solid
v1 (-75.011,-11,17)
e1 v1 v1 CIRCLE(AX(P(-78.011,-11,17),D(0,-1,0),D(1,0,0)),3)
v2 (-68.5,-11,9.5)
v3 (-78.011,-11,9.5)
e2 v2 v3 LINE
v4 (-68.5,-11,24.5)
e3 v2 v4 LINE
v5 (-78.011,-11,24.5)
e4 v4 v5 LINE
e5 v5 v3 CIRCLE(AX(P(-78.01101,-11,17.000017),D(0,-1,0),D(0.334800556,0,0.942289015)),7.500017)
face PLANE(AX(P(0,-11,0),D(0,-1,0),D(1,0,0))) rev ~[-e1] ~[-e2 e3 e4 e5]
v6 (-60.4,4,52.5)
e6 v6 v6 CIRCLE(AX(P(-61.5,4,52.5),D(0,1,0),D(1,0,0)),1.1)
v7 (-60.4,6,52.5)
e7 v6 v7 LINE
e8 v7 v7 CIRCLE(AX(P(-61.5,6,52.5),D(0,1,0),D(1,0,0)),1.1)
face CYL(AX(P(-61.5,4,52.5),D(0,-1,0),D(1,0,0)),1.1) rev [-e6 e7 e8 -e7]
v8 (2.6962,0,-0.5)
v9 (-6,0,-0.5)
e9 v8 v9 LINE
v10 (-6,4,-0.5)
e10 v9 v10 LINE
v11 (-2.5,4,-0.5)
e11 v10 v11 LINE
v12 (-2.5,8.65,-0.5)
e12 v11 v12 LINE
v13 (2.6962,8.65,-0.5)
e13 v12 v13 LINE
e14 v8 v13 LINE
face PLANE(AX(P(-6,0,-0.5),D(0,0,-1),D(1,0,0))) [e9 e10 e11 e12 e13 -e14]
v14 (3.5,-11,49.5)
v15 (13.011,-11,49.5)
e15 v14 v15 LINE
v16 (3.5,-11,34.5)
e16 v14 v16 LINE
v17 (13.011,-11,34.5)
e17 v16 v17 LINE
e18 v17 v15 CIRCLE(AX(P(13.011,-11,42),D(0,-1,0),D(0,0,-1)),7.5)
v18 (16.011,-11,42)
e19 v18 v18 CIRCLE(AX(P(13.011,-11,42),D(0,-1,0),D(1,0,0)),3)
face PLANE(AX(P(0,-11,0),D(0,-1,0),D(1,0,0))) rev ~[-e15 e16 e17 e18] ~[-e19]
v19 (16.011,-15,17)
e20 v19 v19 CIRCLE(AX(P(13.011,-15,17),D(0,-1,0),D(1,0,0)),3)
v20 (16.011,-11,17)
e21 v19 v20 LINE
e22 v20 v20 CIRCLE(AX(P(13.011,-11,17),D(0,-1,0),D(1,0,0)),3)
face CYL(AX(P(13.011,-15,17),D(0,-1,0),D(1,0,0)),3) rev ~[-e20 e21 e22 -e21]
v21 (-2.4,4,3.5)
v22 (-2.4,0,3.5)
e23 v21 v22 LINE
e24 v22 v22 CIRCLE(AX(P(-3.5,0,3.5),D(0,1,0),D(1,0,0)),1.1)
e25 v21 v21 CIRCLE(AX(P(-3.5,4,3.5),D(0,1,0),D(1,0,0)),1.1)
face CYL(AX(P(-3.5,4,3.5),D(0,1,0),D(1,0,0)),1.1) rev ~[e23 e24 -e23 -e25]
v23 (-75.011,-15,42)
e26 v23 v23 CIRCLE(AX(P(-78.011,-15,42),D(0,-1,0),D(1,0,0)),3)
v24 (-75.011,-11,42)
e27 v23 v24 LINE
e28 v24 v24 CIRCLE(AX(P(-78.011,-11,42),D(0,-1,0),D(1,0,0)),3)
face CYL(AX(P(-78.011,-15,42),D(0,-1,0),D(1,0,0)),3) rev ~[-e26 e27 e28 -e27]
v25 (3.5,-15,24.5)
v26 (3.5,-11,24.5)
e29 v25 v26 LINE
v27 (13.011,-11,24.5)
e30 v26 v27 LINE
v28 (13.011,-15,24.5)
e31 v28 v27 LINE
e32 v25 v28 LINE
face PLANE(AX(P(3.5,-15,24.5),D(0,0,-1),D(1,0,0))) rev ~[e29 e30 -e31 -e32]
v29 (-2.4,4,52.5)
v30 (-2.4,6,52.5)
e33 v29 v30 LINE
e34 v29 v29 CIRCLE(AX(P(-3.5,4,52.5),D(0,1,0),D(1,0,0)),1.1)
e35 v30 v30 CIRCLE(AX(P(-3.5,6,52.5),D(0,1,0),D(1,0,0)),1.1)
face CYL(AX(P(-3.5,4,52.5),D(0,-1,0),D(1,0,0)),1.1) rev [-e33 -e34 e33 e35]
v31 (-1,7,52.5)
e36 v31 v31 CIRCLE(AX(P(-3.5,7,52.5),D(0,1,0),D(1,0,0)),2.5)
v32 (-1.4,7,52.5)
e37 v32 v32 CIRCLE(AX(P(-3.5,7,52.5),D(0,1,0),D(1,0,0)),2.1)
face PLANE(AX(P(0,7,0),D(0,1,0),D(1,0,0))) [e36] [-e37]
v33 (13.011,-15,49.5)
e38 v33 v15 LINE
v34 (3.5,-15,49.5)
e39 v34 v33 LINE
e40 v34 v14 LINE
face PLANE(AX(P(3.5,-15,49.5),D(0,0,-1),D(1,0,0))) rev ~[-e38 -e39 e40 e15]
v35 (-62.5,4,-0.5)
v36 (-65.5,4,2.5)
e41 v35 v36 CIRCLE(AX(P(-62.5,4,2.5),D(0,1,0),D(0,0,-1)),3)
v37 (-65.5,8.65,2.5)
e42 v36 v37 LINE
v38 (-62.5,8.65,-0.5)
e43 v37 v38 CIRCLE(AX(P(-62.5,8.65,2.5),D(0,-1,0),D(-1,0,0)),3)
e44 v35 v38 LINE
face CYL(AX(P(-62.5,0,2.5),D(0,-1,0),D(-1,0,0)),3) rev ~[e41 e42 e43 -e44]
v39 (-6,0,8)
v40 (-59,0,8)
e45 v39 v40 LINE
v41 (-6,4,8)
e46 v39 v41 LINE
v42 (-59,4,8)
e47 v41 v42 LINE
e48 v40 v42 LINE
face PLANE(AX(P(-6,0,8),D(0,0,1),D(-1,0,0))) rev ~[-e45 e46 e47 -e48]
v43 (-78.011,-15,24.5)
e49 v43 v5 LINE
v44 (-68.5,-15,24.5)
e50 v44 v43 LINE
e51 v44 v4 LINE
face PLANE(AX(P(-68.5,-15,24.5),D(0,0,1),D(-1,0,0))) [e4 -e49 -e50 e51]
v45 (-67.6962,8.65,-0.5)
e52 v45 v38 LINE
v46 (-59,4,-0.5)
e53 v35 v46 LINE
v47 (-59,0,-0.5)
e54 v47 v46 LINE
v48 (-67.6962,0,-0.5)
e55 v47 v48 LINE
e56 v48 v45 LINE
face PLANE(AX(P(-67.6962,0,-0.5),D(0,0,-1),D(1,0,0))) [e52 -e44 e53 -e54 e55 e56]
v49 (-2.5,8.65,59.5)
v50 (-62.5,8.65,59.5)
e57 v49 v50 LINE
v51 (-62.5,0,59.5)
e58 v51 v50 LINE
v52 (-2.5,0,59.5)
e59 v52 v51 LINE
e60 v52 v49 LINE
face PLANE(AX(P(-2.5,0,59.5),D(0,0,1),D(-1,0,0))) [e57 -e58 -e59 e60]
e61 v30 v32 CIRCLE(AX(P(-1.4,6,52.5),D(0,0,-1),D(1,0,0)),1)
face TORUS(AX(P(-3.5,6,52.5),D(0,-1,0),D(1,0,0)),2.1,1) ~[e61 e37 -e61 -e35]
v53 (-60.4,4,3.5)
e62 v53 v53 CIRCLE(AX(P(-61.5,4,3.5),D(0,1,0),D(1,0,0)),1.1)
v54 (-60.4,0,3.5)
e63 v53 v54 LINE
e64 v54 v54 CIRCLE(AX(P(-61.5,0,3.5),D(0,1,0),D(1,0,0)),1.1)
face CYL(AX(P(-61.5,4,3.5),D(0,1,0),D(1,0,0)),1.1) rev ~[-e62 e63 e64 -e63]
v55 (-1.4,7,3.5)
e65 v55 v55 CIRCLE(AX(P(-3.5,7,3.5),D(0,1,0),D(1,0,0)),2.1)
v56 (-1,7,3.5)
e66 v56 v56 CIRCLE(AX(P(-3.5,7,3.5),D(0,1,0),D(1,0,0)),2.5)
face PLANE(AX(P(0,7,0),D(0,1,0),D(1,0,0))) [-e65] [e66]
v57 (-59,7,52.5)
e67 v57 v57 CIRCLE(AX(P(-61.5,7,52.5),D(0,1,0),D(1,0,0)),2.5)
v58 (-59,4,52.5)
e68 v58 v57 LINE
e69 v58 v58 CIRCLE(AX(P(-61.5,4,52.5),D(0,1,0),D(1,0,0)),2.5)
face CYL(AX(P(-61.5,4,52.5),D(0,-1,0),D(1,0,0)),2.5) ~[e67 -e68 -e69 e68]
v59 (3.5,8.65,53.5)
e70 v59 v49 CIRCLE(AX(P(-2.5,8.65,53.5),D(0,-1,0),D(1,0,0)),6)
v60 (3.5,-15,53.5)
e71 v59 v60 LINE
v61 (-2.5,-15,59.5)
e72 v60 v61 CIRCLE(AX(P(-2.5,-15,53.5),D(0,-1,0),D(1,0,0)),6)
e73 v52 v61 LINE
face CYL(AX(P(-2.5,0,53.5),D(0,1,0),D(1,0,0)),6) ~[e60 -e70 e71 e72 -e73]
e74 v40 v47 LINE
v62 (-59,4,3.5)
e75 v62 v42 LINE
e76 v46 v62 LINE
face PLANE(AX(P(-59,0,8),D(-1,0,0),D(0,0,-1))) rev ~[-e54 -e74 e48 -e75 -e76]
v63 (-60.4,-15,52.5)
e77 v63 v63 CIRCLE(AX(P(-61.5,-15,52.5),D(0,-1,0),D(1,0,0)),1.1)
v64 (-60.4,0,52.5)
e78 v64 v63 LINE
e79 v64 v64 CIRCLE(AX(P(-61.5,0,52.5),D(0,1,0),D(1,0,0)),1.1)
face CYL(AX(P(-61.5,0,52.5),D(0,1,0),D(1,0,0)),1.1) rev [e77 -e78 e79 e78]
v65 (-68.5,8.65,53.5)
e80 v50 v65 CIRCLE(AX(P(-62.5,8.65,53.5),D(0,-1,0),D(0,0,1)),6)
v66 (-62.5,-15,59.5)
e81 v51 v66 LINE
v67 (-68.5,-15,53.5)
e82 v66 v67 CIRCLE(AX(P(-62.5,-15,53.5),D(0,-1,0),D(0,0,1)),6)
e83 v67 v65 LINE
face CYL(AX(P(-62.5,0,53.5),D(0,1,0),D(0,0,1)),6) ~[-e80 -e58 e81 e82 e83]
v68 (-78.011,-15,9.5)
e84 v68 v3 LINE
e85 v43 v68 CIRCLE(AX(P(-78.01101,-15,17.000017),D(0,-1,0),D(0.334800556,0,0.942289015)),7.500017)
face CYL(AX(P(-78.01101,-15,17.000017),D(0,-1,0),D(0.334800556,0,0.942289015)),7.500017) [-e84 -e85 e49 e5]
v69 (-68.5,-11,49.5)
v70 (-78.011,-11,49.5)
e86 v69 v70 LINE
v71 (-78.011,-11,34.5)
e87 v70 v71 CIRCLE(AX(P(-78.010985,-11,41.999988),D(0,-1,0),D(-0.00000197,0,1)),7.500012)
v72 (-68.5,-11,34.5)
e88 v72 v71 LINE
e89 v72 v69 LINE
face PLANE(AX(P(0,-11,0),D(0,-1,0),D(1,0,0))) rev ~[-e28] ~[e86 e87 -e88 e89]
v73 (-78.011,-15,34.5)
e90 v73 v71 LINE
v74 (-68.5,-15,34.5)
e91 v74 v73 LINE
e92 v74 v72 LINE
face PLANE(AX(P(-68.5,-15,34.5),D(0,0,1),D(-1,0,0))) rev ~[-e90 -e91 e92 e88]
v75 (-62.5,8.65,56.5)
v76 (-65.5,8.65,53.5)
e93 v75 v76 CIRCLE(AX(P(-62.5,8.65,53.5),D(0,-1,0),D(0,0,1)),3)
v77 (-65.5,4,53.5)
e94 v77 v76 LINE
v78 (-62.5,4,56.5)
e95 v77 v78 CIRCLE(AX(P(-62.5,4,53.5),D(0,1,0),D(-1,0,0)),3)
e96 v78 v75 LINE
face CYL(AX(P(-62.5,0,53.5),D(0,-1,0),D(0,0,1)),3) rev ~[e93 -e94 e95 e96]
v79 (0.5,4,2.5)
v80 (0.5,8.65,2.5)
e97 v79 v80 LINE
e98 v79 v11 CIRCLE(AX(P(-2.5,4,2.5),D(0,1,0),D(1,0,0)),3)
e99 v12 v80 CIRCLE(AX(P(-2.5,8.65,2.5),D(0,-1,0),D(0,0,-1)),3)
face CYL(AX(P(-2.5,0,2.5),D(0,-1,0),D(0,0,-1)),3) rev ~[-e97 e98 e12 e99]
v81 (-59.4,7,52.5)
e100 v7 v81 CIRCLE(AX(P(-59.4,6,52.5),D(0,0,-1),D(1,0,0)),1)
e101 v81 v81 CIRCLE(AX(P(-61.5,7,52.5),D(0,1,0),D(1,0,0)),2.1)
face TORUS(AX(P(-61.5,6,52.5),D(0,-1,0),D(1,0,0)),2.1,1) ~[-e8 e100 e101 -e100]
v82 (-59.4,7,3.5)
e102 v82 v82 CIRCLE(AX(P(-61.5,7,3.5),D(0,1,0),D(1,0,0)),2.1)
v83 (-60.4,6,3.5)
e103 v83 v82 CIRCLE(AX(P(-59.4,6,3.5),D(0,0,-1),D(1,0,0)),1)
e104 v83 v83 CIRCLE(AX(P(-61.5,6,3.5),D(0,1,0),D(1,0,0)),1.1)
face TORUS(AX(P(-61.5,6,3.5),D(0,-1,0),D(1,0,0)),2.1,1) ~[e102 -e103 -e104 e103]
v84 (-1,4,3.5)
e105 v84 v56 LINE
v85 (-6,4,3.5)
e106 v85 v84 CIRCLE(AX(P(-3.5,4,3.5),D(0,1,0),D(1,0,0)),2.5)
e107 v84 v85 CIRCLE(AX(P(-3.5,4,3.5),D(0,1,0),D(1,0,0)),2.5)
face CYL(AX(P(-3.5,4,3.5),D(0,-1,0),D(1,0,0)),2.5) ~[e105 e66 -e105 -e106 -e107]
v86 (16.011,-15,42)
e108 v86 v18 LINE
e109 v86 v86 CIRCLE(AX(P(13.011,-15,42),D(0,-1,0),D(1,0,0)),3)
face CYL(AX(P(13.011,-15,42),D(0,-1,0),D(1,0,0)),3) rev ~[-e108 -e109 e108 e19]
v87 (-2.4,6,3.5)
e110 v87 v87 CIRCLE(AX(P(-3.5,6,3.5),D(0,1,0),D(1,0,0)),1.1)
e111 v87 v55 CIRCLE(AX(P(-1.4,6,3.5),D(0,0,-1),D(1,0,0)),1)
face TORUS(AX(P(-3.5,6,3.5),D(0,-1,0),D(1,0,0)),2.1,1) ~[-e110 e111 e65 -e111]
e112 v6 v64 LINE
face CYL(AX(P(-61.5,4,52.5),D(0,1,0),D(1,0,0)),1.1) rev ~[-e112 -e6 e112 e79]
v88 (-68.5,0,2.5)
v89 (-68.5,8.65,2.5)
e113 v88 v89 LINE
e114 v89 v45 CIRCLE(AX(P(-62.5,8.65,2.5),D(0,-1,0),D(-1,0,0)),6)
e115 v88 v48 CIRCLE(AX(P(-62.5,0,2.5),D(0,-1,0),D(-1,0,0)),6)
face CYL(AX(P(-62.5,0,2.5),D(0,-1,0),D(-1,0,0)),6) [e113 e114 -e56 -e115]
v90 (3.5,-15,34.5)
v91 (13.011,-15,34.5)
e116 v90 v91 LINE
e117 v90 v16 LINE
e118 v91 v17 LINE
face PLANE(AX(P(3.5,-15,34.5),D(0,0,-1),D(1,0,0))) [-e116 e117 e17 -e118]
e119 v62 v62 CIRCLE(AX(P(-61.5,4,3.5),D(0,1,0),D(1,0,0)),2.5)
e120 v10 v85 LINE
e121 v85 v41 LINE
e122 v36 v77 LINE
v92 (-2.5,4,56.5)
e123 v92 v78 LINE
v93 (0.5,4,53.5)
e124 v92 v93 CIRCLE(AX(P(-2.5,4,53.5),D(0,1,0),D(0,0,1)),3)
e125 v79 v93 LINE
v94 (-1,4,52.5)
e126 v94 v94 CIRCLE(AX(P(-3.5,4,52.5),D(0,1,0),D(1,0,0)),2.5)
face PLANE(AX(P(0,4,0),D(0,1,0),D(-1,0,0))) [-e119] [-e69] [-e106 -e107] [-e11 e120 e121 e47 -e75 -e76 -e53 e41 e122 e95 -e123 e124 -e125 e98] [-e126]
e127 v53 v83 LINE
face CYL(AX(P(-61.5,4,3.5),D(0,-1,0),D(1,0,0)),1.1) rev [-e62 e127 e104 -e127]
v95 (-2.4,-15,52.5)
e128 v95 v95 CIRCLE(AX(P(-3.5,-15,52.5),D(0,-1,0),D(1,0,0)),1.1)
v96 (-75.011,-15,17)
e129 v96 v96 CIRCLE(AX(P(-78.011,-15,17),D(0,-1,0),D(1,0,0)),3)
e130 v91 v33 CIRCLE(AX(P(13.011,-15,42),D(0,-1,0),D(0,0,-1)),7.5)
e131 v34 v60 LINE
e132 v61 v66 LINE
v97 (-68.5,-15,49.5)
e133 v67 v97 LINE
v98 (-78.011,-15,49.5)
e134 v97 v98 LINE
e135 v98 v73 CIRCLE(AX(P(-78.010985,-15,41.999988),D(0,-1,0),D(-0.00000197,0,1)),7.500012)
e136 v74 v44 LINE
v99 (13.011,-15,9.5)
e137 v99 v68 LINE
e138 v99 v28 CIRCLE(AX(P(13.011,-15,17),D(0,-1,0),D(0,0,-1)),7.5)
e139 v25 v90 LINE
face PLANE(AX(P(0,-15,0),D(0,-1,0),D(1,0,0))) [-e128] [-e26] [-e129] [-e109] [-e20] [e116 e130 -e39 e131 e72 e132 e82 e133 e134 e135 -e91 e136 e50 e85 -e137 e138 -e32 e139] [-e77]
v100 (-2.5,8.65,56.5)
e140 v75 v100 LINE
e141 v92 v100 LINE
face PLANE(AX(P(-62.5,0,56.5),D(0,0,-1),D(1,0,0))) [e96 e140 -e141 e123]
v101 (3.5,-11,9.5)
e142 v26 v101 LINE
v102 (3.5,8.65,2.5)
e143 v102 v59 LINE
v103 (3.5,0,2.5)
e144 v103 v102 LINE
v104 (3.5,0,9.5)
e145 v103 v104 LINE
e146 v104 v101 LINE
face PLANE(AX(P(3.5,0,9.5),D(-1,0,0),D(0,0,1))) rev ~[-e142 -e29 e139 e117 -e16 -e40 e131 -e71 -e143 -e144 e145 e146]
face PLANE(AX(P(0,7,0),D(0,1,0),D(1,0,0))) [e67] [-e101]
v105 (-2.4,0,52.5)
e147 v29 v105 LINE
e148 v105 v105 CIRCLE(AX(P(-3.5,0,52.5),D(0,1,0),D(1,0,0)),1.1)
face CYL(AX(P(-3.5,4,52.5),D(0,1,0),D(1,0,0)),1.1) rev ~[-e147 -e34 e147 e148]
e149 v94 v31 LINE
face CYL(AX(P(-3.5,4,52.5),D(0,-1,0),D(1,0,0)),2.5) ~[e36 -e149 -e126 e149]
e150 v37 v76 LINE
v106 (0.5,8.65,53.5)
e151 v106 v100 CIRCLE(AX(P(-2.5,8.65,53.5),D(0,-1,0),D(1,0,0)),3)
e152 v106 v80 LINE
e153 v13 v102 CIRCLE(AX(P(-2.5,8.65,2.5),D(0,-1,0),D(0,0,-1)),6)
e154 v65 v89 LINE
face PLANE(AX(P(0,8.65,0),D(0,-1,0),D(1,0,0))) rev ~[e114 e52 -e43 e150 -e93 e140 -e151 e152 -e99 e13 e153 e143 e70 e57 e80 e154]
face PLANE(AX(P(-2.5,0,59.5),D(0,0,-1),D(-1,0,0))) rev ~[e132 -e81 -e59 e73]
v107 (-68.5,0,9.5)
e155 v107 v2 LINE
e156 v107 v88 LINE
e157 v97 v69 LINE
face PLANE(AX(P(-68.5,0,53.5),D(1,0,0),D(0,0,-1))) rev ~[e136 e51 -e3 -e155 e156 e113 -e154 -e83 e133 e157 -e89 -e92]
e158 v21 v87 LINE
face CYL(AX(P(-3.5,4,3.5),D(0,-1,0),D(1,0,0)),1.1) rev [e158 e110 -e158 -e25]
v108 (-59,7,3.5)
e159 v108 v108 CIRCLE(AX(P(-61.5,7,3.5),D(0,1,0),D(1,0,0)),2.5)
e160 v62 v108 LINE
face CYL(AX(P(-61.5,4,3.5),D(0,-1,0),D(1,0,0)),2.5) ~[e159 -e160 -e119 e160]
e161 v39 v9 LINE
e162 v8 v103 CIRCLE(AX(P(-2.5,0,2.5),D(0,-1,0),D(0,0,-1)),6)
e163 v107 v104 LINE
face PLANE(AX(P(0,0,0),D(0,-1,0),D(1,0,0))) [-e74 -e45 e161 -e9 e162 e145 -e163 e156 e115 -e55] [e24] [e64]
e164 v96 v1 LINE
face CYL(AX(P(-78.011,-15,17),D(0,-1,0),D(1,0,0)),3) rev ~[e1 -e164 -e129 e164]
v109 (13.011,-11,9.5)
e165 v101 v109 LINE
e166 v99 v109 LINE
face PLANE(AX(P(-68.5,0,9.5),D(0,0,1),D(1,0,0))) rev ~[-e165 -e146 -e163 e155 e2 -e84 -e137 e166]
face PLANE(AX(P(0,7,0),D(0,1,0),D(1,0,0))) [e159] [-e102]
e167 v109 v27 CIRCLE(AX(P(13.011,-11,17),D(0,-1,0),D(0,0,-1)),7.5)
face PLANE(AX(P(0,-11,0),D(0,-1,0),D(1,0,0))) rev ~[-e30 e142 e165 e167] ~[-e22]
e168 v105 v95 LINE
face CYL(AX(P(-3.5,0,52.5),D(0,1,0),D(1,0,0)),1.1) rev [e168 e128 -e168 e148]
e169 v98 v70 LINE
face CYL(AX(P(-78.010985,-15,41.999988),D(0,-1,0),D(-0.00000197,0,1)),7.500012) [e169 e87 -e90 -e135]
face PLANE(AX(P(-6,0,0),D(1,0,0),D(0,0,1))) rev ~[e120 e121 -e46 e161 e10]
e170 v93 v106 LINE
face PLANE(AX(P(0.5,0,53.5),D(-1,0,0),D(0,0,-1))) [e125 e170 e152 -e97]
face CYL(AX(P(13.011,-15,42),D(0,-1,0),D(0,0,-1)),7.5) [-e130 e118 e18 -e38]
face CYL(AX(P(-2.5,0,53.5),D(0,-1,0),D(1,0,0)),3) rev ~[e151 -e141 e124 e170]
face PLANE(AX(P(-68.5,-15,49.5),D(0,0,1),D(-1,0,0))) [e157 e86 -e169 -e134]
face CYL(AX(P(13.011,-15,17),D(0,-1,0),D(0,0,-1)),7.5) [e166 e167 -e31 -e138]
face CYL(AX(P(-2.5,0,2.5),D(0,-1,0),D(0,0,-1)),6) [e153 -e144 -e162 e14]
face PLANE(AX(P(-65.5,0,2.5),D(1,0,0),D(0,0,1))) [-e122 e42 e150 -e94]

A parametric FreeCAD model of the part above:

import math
import FreeCAD as App
import Part
import Sketcher

V = App.Vector
Q = App.Units.Quantity


def edges_at(feature, points):
    """Names of the edges that pass closest to the given points."""
    edges = feature.Shape.Edges
    near = lambda p: min(range(len(edges)), key=lambda i: edges[i].distToShape(Part.Vertex(*p))[0])
    return sorted({f"Edge{near(p) + 1}" for p in points})

doc = App.newDocument("Part")
body = doc.addObject("PartDesign::Body", "Body")

sketch1 = body.newObject("Sketcher::SketchObject", "Sketch")
sketch1.AttachmentSupport = (doc.getObject("XZ_Plane"), [""])
sketch1.MapMode = "FlatFace"
sketch1.addGeometry([
    Part.LineSegment(V(-59, 8, 0), V(-59, -0.5, 0)),
    Part.LineSegment(V(-59, -0.5, 0), V(-62.5, -0.5, 0)),
    Part.ArcOfCircle(Part.Circle(V(-62.5, 2.5, 0), V(0, 0, 1), 3), math.radians(180), math.radians(270)),
    Part.LineSegment(V(-65.5, 2.5, 0), V(-65.5, 53.5, 0)),
    Part.ArcOfCircle(Part.Circle(V(-62.5, 53.5, 0), V(0, 0, 1), 3), math.radians(90), math.radians(180)),
    Part.LineSegment(V(-62.5, 56.5, 0), V(-2.5, 56.5, 0)),
    Part.ArcOfCircle(Part.Circle(V(-2.5, 53.5, 0), V(0, 0, 1), 3), math.radians(0), math.radians(90)),
    Part.LineSegment(V(0.5, 53.5, 0), V(0.5, 2.5, 0)),
    Part.ArcOfCircle(Part.Circle(V(-2.5, 2.5, 0), V(0, 0, 1), 3), math.radians(-90), math.radians(0)),
    Part.LineSegment(V(-2.5, -0.5, 0), V(-6, -0.5, 0)),
    Part.LineSegment(V(-6, -0.5, 0), V(-6, 8, 0)),
    Part.LineSegment(V(-6, 8, 0), V(-59, 8, 0)),
], False)
sketch1.addConstraint([
    Sketcher.Constraint("Coincident", 0, 2, 1, 1),
    Sketcher.Constraint("Tangent", 1, 2, 2, 2),
    Sketcher.Constraint("Tangent", 2, 1, 3, 1),
    Sketcher.Constraint("Tangent", 3, 2, 4, 2),
    Sketcher.Constraint("Tangent", 4, 1, 5, 1),
    Sketcher.Constraint("Tangent", 5, 2, 6, 2),
    Sketcher.Constraint("Tangent", 6, 1, 7, 1),
    Sketcher.Constraint("Tangent", 7, 2, 8, 2),
    Sketcher.Constraint("Tangent", 8, 1, 9, 1),
    Sketcher.Constraint("Coincident", 9, 2, 10, 1),
    Sketcher.Constraint("Coincident", 10, 2, 11, 1),
    Sketcher.Constraint("Coincident", 11, 2, 0, 1),
    Sketcher.Constraint("Vertical", 0),
    Sketcher.Constraint("Horizontal", 1),
    Sketcher.Constraint("Vertical", 3),
    Sketcher.Constraint("Horizontal", 5),
    Sketcher.Constraint("Vertical", 7),
    Sketcher.Constraint("Horizontal", 9),
    Sketcher.Constraint("Vertical", 10),
    Sketcher.Constraint("Horizontal", 11),
    Sketcher.Constraint("Equal", 2, 4),
    Sketcher.Constraint("Equal", 4, 6),
    Sketcher.Constraint("Equal", 6, 8),
    Sketcher.Constraint("Horizontal", 2, 3, 8, 3),
    Sketcher.Constraint("Equal", 1, 9),
    Sketcher.Constraint("DistanceX", 11, 2, 11, 1, Q("53 mm")),
    Sketcher.Constraint("DistanceY", -1, 1, 10, 2, Q("8 mm")),
    Sketcher.Constraint("Radius", 2, Q("3 mm")),
    Sketcher.Constraint("DistanceY", -1, 1, 2, 3, Q("2.5 mm")),
    Sketcher.Constraint("DistanceX", 6, 3, -1, 1, Q("2.5 mm")),
    Sketcher.Constraint("DistanceX", 5, 1, 5, 2, Q("60 mm")),
    Sketcher.Constraint("DistanceY", 3, 1, 3, 2, Q("51 mm")),
])
pad1 = body.newObject("PartDesign::Pad", "Pad")
pad1.Profile = sketch1
pad1.Length = 4
pad1.Reversed = True

sketch2 = body.newObject("Sketcher::SketchObject", "Sketch001")
sketch2.AttachmentSupport = (doc.getObject("XZ_Plane"), [""])
sketch2.MapMode = "FlatFace"
sketch2.AttachmentOffset = App.Placement(V(0, 0, -4), App.Rotation())
sketch2.addGeometry([
    Part.Circle(V(-61.5, 52.5, 0), V(0, 0, 1), 2.5),
    Part.Circle(V(-61.5, 52.5, 0), V(0, 0, 1), 1.1),
    Part.Circle(V(-61.5, 3.5, 0), V(0, 0, 1), 2.5),
    Part.Circle(V(-61.5, 3.5, 0), V(0, 0, 1), 1.1),
    Part.Circle(V(-3.5, 3.5, 0), V(0, 0, 1), 2.5),
    Part.Circle(V(-3.5, 3.5, 0), V(0, 0, 1), 1.1),
    Part.Circle(V(-3.5, 52.5, 0), V(0, 0, 1), 2.5),
    Part.Circle(V(-3.5, 52.5, 0), V(0, 0, 1), 1.1),
], False)
sketch2.addConstraint([
    Sketcher.Constraint("Coincident", 1, 3, 0, 3),
    Sketcher.Constraint("Coincident", 3, 3, 2, 3),
    Sketcher.Constraint("Coincident", 5, 3, 4, 3),
    Sketcher.Constraint("Coincident", 7, 3, 6, 3),
    Sketcher.Constraint("Equal", 0, 2),
    Sketcher.Constraint("Equal", 1, 3),
    Sketcher.Constraint("Equal", 2, 4),
    Sketcher.Constraint("Equal", 3, 5),
    Sketcher.Constraint("Equal", 4, 6),
    Sketcher.Constraint("Equal", 5, 7),
    Sketcher.Constraint("Horizontal", 3, 3, 4, 3),
    Sketcher.Constraint("Horizontal", 1, 3, 6, 3),
    Sketcher.Constraint("Vertical", 1, 3, 2, 3),
    Sketcher.Constraint("Vertical", 5, 3, 6, 3),
    Sketcher.Constraint("Diameter", 0, Q("5 mm")),
    Sketcher.Constraint("Diameter", 1, Q("2.2 mm")),
    Sketcher.Constraint("DistanceY", 2, 3, 0, 3, Q("49 mm")),
    Sketcher.Constraint("DistanceX", 2, 3, 4, 3, Q("58 mm")),
    Sketcher.Constraint("DistanceX", 0, 3, -1, 1, Q("61.5 mm")),
    Sketcher.Constraint("DistanceY", -1, 1, 0, 3, Q("52.5 mm")),
])
pad2 = body.newObject("PartDesign::Pad", "Pad001")
pad2.Profile = sketch2
pad2.Length = 3
pad2.Reversed = True

sketch3 = body.newObject("Sketcher::SketchObject", "Sketch002")
sketch3.AttachmentSupport = (doc.getObject("XZ_Plane"), [""])
sketch3.MapMode = "FlatFace"
sketch3.AttachmentOffset = App.Placement(V(0, 0, -4), App.Rotation())
sketch3.addGeometry([
    Part.Circle(V(-3.5, 3.5, 0), V(0, 0, 1), 1.1),
    Part.Circle(V(-3.5, 52.5, 0), V(0, 0, 1), 1.1),
    Part.Circle(V(-61.5, 52.5, 0), V(0, 0, 1), 1.1),
    Part.Circle(V(-61.5, 3.5, 0), V(0, 0, 1), 1.1),
], False)
sketch3.addConstraint([
    Sketcher.Constraint("Equal", 0, 1),
    Sketcher.Constraint("Equal", 1, 2),
    Sketcher.Constraint("Equal", 2, 3),
    Sketcher.Constraint("Horizontal", 1, 3, 2, 3),
    Sketcher.Constraint("Horizontal", 0, 3, 3, 3),
    Sketcher.Constraint("Vertical", 0, 3, 1, 3),
    Sketcher.Constraint("Vertical", 2, 3, 3, 3),
    Sketcher.Constraint("Diameter", 0, Q("2.2 mm")),
    Sketcher.Constraint("DistanceY", 0, 3, 1, 3, Q("49 mm")),
    Sketcher.Constraint("DistanceX", 2, 3, 1, 3, Q("58 mm")),
    Sketcher.Constraint("DistanceX", 0, 3, -1, 1, Q("3.5 mm")),
    Sketcher.Constraint("DistanceY", -1, 1, 0, 3, Q("3.5 mm")),
])
pocket1 = body.newObject("PartDesign::Pocket", "Pocket")
pocket1.Profile = sketch3
pocket1.Length = 4
pocket1.Reversed = True

sketch4 = body.newObject("Sketcher::SketchObject", "Sketch003")
sketch4.AttachmentSupport = (doc.getObject("XZ_Plane"), [""])
sketch4.MapMode = "FlatFace"
sketch4.addGeometry([
    Part.ArcOfCircle(Part.Circle(V(-62.5, 2.5, 0), V(0, 0, 1), 3), math.radians(180), math.radians(270)),
    Part.LineSegment(V(-65.5, 2.5, 0), V(-65.5, 53.5, 0)),
    Part.ArcOfCircle(Part.Circle(V(-62.5, 53.5, 0), V(0, 0, 1), 3), math.radians(90), math.radians(180)),
    Part.LineSegment(V(-62.5, 56.5, 0), V(-2.5, 56.5, 0)),
    Part.ArcOfCircle(Part.Circle(V(-2.5, 53.5, 0), V(0, 0, 1), 3), math.radians(0), math.radians(90)),
    Part.LineSegment(V(0.5, 53.5, 0), V(0.5, 2.5, 0)),
    Part.ArcOfCircle(Part.Circle(V(-2.5, 2.5, 0), V(0, 0, 1), 3), math.radians(-90), math.radians(0)),
    Part.LineSegment(V(-2.5, -0.5, 0), V(2.7, -0.5, 0)),
    Part.ArcOfCircle(Part.Circle(V(-2.5, 2.5, 0), V(0, 0, 1), 6), math.radians(-30), math.radians(0)),
    Part.LineSegment(V(3.5, 2.5, 0), V(3.5, 53.5, 0)),
    Part.ArcOfCircle(Part.Circle(V(-2.5, 53.5, 0), V(0, 0, 1), 6), math.radians(0), math.radians(90)),
    Part.LineSegment(V(-2.5, 59.5, 0), V(-62.5, 59.5, 0)),
    Part.ArcOfCircle(Part.Circle(V(-62.5, 53.5, 0), V(0, 0, 1), 6), math.radians(90), math.radians(180)),
    Part.LineSegment(V(-68.5, 53.5, 0), V(-68.5, 2.5, 0)),
    Part.ArcOfCircle(Part.Circle(V(-62.5, 2.5, 0), V(0, 0, 1), 6), math.radians(180), math.radians(210)),
    Part.LineSegment(V(-67.7, -0.5, 0), V(-62.5, -0.5, 0)),
], False)
sketch4.addConstraint([
    Sketcher.Constraint("Tangent", 0, 1, 1, 1),
    Sketcher.Constraint("Tangent", 1, 2, 2, 2),
    Sketcher.Constraint("Tangent", 2, 1, 3, 1),
    Sketcher.Constraint("Tangent", 3, 2, 4, 2),
    Sketcher.Constraint("Tangent", 4, 1, 5, 1),
    Sketcher.Constraint("Tangent", 5, 2, 6, 2),
    Sketcher.Constraint("Tangent", 6, 1, 7, 1),
    Sketcher.Constraint("Coincident", 7, 2, 8, 1),
    Sketcher.Constraint("Tangent", 8, 2, 9, 1),
    Sketcher.Constraint("Tangent", 9, 2, 10, 1),
    Sketcher.Constraint("Tangent", 10, 2, 11, 1),
    Sketcher.Constraint("Tangent", 11, 2, 12, 1),
    Sketcher.Constraint("Tangent", 12, 2, 13, 1),
    Sketcher.Constraint("Tangent", 13, 2, 14, 1),
    Sketcher.Constraint("Coincident", 14, 2, 15, 1),
    Sketcher.Constraint("Tangent", 15, 2, 0, 2),
    Sketcher.Constraint("Vertical", 1),
    Sketcher.Constraint("Horizontal", 3),
    Sketcher.Constraint("Vertical", 5),
    Sketcher.Constraint("Horizontal", 7),
    Sketcher.Constraint("Vertical", 9),
    Sketcher.Constraint("Horizontal", 11),
    Sketcher.Constraint("Vertical", 13),
    Sketcher.Constraint("Horizontal", 15),
    Sketcher.Constraint("Coincident", 8, 3, 6, 3),
    Sketcher.Constraint("Coincident", 10, 3, 4, 3),
    Sketcher.Constraint("Coincident", 12, 3, 2, 3),
    Sketcher.Constraint("Coincident", 14, 3, 0, 3),
    Sketcher.Constraint("Equal", 0, 2),
    Sketcher.Constraint("Equal", 2, 4),
    Sketcher.Constraint("Equal", 4, 6),
    Sketcher.Constraint("Horizontal", 0, 3, 6, 3),
    Sketcher.Constraint("Radius", 0, Q("3 mm")),
    Sketcher.Constraint("Radius", 8, Q("6 mm")),
    Sketcher.Constraint("DistanceX", 3, 1, 3, 2, Q("60 mm")),
    Sketcher.Constraint("DistanceY", 1, 1, 1, 2, Q("51 mm")),
    Sketcher.Constraint("DistanceX", 0, 3, -1, 1, Q("62.5 mm")),
    Sketcher.Constraint("DistanceY", -1, 1, 0, 3, Q("2.5 mm")),
])
pad3 = body.newObject("PartDesign::Pad", "Pad002")
pad3.Profile = sketch4
pad3.Length = 8.65
pad3.Reversed = True

sketch5 = body.newObject("Sketcher::SketchObject", "Sketch004")
sketch5.AttachmentSupport = (doc.getObject("XZ_Plane"), [""])
sketch5.MapMode = "FlatFace"
sketch5.addGeometry([
    Part.LineSegment(V(-68.5, 9.5, 0), V(3.5, 9.5, 0)),
    Part.LineSegment(V(3.5, 9.5, 0), V(3.5, 53.5, 0)),
    Part.ArcOfCircle(Part.Circle(V(-2.5, 53.5, 0), V(0, 0, 1), 6), math.radians(0), math.radians(90)),
    Part.LineSegment(V(-2.5, 59.5, 0), V(-62.5, 59.5, 0)),
    Part.ArcOfCircle(Part.Circle(V(-62.5, 53.5, 0), V(0, 0, 1), 6), math.radians(90), math.radians(180)),
    Part.LineSegment(V(-68.5, 53.5, 0), V(-68.5, 9.5, 0)),
    Part.Circle(V(-61.5, 52.5, 0), V(0, 0, 1), 1.1),
    Part.Circle(V(-3.5, 52.5, 0), V(0, 0, 1), 1.1),
], False)
sketch5.addConstraint([
    Sketcher.Constraint("Coincident", 0, 2, 1, 1),
    Sketcher.Constraint("Tangent", 1, 2, 2, 1),
    Sketcher.Constraint("Tangent", 2, 2, 3, 1),
    Sketcher.Constraint("Tangent", 3, 2, 4, 1),
    Sketcher.Constraint("Tangent", 4, 2, 5, 1),
    Sketcher.Constraint("Coincident", 5, 2, 0, 1),
    Sketcher.Constraint("Horizontal", 0),
    Sketcher.Constraint("Vertical", 1),
    Sketcher.Constraint("Horizontal", 3),
    Sketcher.Constraint("Vertical", 5),
    Sketcher.Constraint("Equal", 2, 4),
    Sketcher.Constraint("Equal", 6, 7),
    Sketcher.Constraint("Horizontal", 6, 3, 7, 3),
    Sketcher.Constraint("Radius", 2, Q("6 mm")),
    Sketcher.Constraint("Diameter", 6, Q("2.2 mm")),
    Sketcher.Constraint("DistanceX", 0, 1, 0, 2, Q("72 mm")),
    Sketcher.Constraint("DistanceY", 1, 1, 1, 2, Q("44 mm")),
    Sketcher.Constraint("DistanceX", 4, 3, 6, 3, Q("1 mm")),
    Sketcher.Constraint("DistanceY", 6, 3, 4, 3, Q("1 mm")),
    Sketcher.Constraint("DistanceX", 7, 3, 2, 3, Q("1 mm")),
    Sketcher.Constraint("DistanceX", 2, 3, -1, 1, Q("2.5 mm")),
    Sketcher.Constraint("DistanceY", -1, 1, 2, 3, Q("53.5 mm")),
])
pad4 = body.newObject("PartDesign::Pad", "Pad003")
pad4.Profile = sketch5
pad4.Length = 15

sketch6 = body.newObject("Sketcher::SketchObject", "Sketch005")
sketch6.AttachmentSupport = (doc.getObject("XZ_Plane"), [""])
sketch6.MapMode = "FlatFace"
sketch6.AttachmentOffset = App.Placement(V(0, 0, 15), App.Rotation())
sketch6.addGeometry([
    Part.LineSegment(V(-68.5, 24.5, 0), V(-78, 24.5, 0)),
    Part.ArcOfCircle(Part.Circle(V(-78, 17, 0), V(0, 0, 1), 7.5), math.radians(90), math.radians(270)),
    Part.LineSegment(V(-78, 9.5, 0), V(-68.5, 9.5, 0)),
    Part.LineSegment(V(-68.5, 9.5, 0), V(-68.5, 24.5, 0)),
    Part.Circle(V(-78, 17, 0), V(0, 0, 1), 3),
    Part.LineSegment(V(-78, 34.5, 0), V(-68.5, 34.5, 0)),
    Part.LineSegment(V(-68.5, 34.5, 0), V(-68.5, 49.5, 0)),
    Part.LineSegment(V(-68.5, 49.5, 0), V(-78, 49.5, 0)),
    Part.ArcOfCircle(Part.Circle(V(-78, 42, 0), V(0, 0, 1), 7.5), math.radians(90), math.radians(270)),
    Part.Circle(V(-78, 42, 0), V(0, 0, 1), 3),
    Part.LineSegment(V(3.5, 49.5, 0), V(3.5, 34.5, 0)),
    Part.LineSegment(V(3.5, 34.5, 0), V(13, 34.5, 0)),
    Part.ArcOfCircle(Part.Circle(V(13, 42, 0), V(0, 0, 1), 7.5), math.radians(-90), math.radians(90)),
    Part.LineSegment(V(13, 49.5, 0), V(3.5, 49.5, 0)),
    Part.Circle(V(13, 42, 0), V(0, 0, 1), 3),
    Part.LineSegment(V(3.5, 24.5, 0), V(3.5, 9.5, 0)),
    Part.LineSegment(V(3.5, 9.5, 0), V(13, 9.5, 0)),
    Part.ArcOfCircle(Part.Circle(V(13, 17, 0), V(0, 0, 1), 7.5), math.radians(-90), math.radians(90)),
    Part.LineSegment(V(13, 24.5, 0), V(3.5, 24.5, 0)),
    Part.Circle(V(13, 17, 0), V(0, 0, 1), 3),
], False)
sketch6.addConstraint([
    Sketcher.Constraint("Tangent", 0, 2, 1, 1),
    Sketcher.Constraint("Tangent", 1, 2, 2, 1),
    Sketcher.Constraint("Coincident", 2, 2, 3, 1),
    Sketcher.Constraint("Coincident", 3, 2, 0, 1),
    Sketcher.Constraint("Coincident", 5, 2, 6, 1),
    Sketcher.Constraint("Coincident", 6, 2, 7, 1),
    Sketcher.Constraint("Tangent", 7, 2, 8, 1),
    Sketcher.Constraint("Tangent", 8, 2, 5, 1),
    Sketcher.Constraint("Coincident", 10, 2, 11, 1),
    Sketcher.Constraint("Tangent", 11, 2, 12, 1),
    Sketcher.Constraint("Tangent", 12, 2, 13, 1),
    Sketcher.Constraint("Coincident", 13, 2, 10, 1),
    Sketcher.Constraint("Coincident", 15, 2, 16, 1),
    Sketcher.Constraint("Tangent", 16, 2, 17, 1),
    Sketcher.Constraint("Tangent", 17, 2, 18, 1),
    Sketcher.Constraint("Coincident", 18, 2, 15, 1),
    Sketcher.Constraint("Horizontal", 0),
    Sketcher.Constraint("Horizontal", 2),
    Sketcher.Constraint("Vertical", 3),
    Sketcher.Constraint("Horizontal", 5),
    Sketcher.Constraint("Vertical", 6),
    Sketcher.Constraint("Horizontal", 7),
    Sketcher.Constraint("Vertical", 10),
    Sketcher.Constraint("Horizontal", 11),
    Sketcher.Constraint("Horizontal", 13),
    Sketcher.Constraint("Vertical", 15),
    Sketcher.Constraint("Horizontal", 16),
    Sketcher.Constraint("Horizontal", 18),
    Sketcher.Constraint("Coincident", 4, 3, 1, 3),
    Sketcher.Constraint("Coincident", 9, 3, 8, 3),
    Sketcher.Constraint("Coincident", 14, 3, 12, 3),
    Sketcher.Constraint("Coincident", 19, 3, 17, 3),
    Sketcher.Constraint("Equal", 1, 8),
    Sketcher.Constraint("Equal", 4, 9),
    Sketcher.Constraint("Equal", 8, 12),
    Sketcher.Constraint("Equal", 9, 14),
    Sketcher.Constraint("Equal", 12, 17),
    Sketcher.Constraint("Equal", 14, 19),
    Sketcher.Constraint("Horizontal", 9, 3, 12, 3),
    Sketcher.Constraint("Horizontal", 4, 3, 17, 3),
    Sketcher.Constraint("Vertical", 4, 3, 8, 3),
    Sketcher.Constraint("Vertical", 14, 3, 17, 3),
    Sketcher.Constraint("Vertical", 3, 2, 5, 2),
    Sketcher.Constraint("Vertical", 13, 2, 15, 2),
    Sketcher.Constraint("Equal", 7, 11),
    Sketcher.Constraint("Diameter", 4, Q("6 mm")),
    Sketcher.Constraint("DistanceY", 1, 3, 8, 3, Q("25 mm")),
    Sketcher.Constraint("Radius", 1, Q("7.5 mm")),
    Sketcher.Constraint("DistanceY", -1, 1, 1, 3, Q("17 mm")),
    Sketcher.Constraint("DistanceX", 5, 2, 10, 2, Q("72 mm")),
    Sketcher.Constraint("DistanceX", 2, 2, -1, 1, Q("68.5 mm")),
    Sketcher.Constraint("DistanceX", 0, 2, 0, 1, Q("9.511 mm")),
])
pad5 = body.newObject("PartDesign::Pad", "Pad004")
pad5.Profile = sketch6
pad5.Length = 4
pad5.Reversed = True
doc.recompute()

fillet = body.newObject("PartDesign::Fillet", "Fillet")
fillet.Base = (pad5, edges_at(pad5, [
    (-4.6, 7, 52.5),
    (-62.6, 7, 52.5),
    (-4.6, 7, 3.5),
    (-62.6, 7, 3.5),
]))
fillet.Radius = 1

doc.recompute()
